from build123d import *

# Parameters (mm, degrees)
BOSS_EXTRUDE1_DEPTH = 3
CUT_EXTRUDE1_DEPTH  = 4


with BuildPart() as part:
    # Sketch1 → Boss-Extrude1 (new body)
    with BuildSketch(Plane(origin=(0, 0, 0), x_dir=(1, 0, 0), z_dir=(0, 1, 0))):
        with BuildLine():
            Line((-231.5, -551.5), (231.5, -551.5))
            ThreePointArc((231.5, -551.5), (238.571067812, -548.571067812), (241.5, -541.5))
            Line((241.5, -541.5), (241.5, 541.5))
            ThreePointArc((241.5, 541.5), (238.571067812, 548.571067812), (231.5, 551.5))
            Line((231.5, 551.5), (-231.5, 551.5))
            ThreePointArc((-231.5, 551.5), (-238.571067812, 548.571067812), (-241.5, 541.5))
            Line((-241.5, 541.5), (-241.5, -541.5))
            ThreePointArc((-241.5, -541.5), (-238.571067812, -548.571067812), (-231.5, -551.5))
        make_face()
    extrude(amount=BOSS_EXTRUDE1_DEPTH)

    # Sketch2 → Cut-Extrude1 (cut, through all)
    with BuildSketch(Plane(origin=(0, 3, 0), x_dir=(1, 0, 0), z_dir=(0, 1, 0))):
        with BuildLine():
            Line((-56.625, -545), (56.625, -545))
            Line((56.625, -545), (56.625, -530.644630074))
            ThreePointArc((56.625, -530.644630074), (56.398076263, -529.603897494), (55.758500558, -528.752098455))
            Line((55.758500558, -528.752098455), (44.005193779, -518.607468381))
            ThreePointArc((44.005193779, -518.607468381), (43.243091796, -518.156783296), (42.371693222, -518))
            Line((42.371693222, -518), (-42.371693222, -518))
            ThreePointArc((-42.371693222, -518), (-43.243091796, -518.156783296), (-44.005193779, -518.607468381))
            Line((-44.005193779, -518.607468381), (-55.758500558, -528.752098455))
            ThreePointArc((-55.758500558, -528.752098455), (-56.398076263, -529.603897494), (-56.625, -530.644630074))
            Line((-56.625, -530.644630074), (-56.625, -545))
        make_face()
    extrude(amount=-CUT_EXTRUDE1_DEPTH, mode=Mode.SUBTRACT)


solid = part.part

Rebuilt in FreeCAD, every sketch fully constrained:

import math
import FreeCAD as App
import Part
import Sketcher

V = App.Vector

doc = App.newDocument("Part")
params = doc.addObject("Spreadsheet::Sheet", "Params")
for row, (alias, value) in enumerate([
    ("sketch1_radius", "10 mm"),
    ("sketch1_width", "463 mm"),
    ("sketch1_height", "1083 mm"),
    ("pad1_length", "3 mm"),
    ("sketch2_radius", "2.5 mm"),
    ("sketch2_width", "113.25 mm"),
], start=1):
    params.set(f"A{row}", alias)
    params.set(f"B{row}", "=" + value)
    params.setAlias(f"B{row}", alias)

body = doc.addObject("PartDesign::Body", "Body")

sketch1 = body.newObject("Sketcher::SketchObject", "Sketch")
sketch1.AttachmentSupport = (doc.getObject("XZ_Plane"), [""])
sketch1.MapMode = "FlatFace"
sketch1.addGeometry([
    Part.LineSegment(V(-231.5, 551.5, 0), V(231.5, 551.5, 0)),
    Part.ArcOfCircle(Part.Circle(V(231.5, 541.5, 0), V(0, 0, 1), 10), math.radians(0), math.radians(90)),
    Part.LineSegment(V(241.5, 541.5, 0), V(241.5, -541.5, 0)),
    Part.ArcOfCircle(Part.Circle(V(231.5, -541.5, 0), V(0, 0, 1), 10), math.radians(-90), math.radians(0)),
    Part.LineSegment(V(231.5, -551.5, 0), V(-231.5, -551.5, 0)),
    Part.ArcOfCircle(Part.Circle(V(-231.5, -541.5, 0), V(0, 0, 1), 10), math.radians(180), math.radians(270)),
    Part.LineSegment(V(-241.5, -541.5, 0), V(-241.5, 541.5, 0)),
    Part.ArcOfCircle(Part.Circle(V(-231.5, 541.5, 0), V(0, 0, 1), 10), math.radians(90), math.radians(180)),
], False)
sketch1.addConstraint([
    Sketcher.Constraint("Tangent", 0, 2, 1, 2),
    Sketcher.Constraint("Tangent", 1, 1, 2, 1),
    Sketcher.Constraint("Tangent", 2, 2, 3, 2),
    Sketcher.Constraint("Tangent", 3, 1, 4, 1),
    Sketcher.Constraint("Tangent", 4, 2, 5, 2),
    Sketcher.Constraint("Tangent", 5, 1, 6, 1),
    Sketcher.Constraint("Tangent", 6, 2, 7, 2),
    Sketcher.Constraint("Tangent", 7, 1, 0, 1),
    Sketcher.Constraint("Horizontal", 0),
    Sketcher.Constraint("Vertical", 2),
    Sketcher.Constraint("Horizontal", 4),
    Sketcher.Constraint("Vertical", 6),
    Sketcher.Constraint("Equal", 1, 3),
    Sketcher.Constraint("Equal", 3, 5),
    Sketcher.Constraint("Equal", 5, 7),
    Sketcher.Constraint("Symmetric", 1, 3, 5, 3, -1, 1),
    Sketcher.Constraint("Radius", 1, 10.0),
    Sketcher.Constraint("DistanceX", 0, 1, 0, 2, 463.0),
    Sketcher.Constraint("DistanceY", 2, 2, 2, 1, 1083.0),
])
sketch1.setExpression("Constraints[16]", "Params.sketch1_radius")
sketch1.setExpression("Constraints[17]", "Params.sketch1_width")
sketch1.setExpression("Constraints[18]", "Params.sketch1_height")
pad1 = body.newObject("PartDesign::Pad", "Pad")
pad1.Profile = sketch1
pad1.setExpression("Length", "Params.pad1_length")
pad1.Reversed = True

sketch2 = body.newObject("Sketcher::SketchObject", "Sketch001")
sketch2.AttachmentSupport = (doc.getObject("XZ_Plane"), [""])
sketch2.MapMode = "FlatFace"
sketch2.AttachmentOffset = App.Placement(V(0, 0, -3), App.Rotation())
sketch2.addGeometry([
    Part.LineSegment(V(-56.625, 545, 0), V(56.625, 545, 0)),
    Part.LineSegment(V(56.625, 545, 0), V(56.625, 530.64463, 0)),
    Part.ArcOfCircle(Part.Circle(V(54.125, 530.64463, 0), V(0, 0, 1), 2.5), math.radians(-49.201543), math.radians(0)),
    Part.LineSegment(V(55.758501, 528.752098, 0), V(44.005194, 518.607468, 0)),
    Part.ArcOfCircle(Part.Circle(V(42.371693, 520.5, 0), V(0, 0, 1), 2.5), math.radians(-90), math.radians(-49.201543)),
    Part.LineSegment(V(42.371693, 518, 0), V(-42.371693, 518, 0)),
    Part.ArcOfCircle(Part.Circle(V(-42.371693, 520.5, 0), V(0, 0, 1), 2.5), math.radians(-130.798457), math.radians(-90)),
    Part.LineSegment(V(-44.005194, 518.607468, 0), V(-55.758501, 528.752098, 0)),
    Part.ArcOfCircle(Part.Circle(V(-54.125, 530.64463, 0), V(0, 0, 1), 2.5), math.radians(180), math.radians(229.201543)),
    Part.LineSegment(V(-56.625, 530.64463, 0), V(-56.625, 545, 0)),
], False)
sketch2.addConstraint([
    Sketcher.Constraint("Coincident", 0, 2, 1, 1),
    Sketcher.Constraint("Tangent", 1, 2, 2, 2),
    Sketcher.Constraint("Tangent", 2, 1, 3, 1),
    Sketcher.Constraint("Tangent", 3, 2, 4, 2),
    Sketcher.Constraint("Tangent", 4, 1, 5, 1),
    Sketcher.Constraint("Tangent", 5, 2, 6, 2),
    Sketcher.Constraint("Tangent", 6, 1, 7, 1),
    Sketcher.Constraint("Tangent", 7, 2, 8, 2),
    Sketcher.Constraint("Tangent", 8, 1, 9, 1),
    Sketcher.Constraint("Coincident", 9, 2, 0, 1),
    Sketcher.Constraint("Horizontal", 0),
    Sketcher.Constraint("Vertical", 1),
    Sketcher.Constraint("Horizontal", 5),
    Sketcher.Constraint("Vertical", 9),
    Sketcher.Constraint("Equal", 2, 4),
    Sketcher.Constraint("Equal", 4, 6),
    Sketcher.Constraint("Equal", 6, 8),
    Sketcher.Constraint("Symmetric", 2, 3, 8, 3, -2),
    Sketcher.Constraint("Horizontal", 3, 2, 6, 1),
    Sketcher.Constraint("Radius", 2, 2.5),
    Sketcher.Constraint("DistanceY", -1, 1, 0, 2, 545.0),
    Sketcher.Constraint("DistanceY", -1, 1, 4, 1, 518.0),
    Sketcher.Constraint("DistanceX", 0, 1, 0, 2, 113.25),
    Sketcher.Constraint("DistanceY", 1, 2, 1, 1, 14.35537),
    Sketcher.Constraint("DistanceX", -1, 1, 2, 1, 55.758501),
])
sketch2.setExpression("Constraints[19]", "Params.sketch2_radius")
sketch2.setExpression("Constraints[22]", "Params.sketch2_width")
pocket1 = body.newObject("PartDesign::Pocket", "Pocket")
pocket1.Profile = sketch2
pocket1.Type = "ThroughAll"
pocket1.Reversed = True

doc.recompute()
